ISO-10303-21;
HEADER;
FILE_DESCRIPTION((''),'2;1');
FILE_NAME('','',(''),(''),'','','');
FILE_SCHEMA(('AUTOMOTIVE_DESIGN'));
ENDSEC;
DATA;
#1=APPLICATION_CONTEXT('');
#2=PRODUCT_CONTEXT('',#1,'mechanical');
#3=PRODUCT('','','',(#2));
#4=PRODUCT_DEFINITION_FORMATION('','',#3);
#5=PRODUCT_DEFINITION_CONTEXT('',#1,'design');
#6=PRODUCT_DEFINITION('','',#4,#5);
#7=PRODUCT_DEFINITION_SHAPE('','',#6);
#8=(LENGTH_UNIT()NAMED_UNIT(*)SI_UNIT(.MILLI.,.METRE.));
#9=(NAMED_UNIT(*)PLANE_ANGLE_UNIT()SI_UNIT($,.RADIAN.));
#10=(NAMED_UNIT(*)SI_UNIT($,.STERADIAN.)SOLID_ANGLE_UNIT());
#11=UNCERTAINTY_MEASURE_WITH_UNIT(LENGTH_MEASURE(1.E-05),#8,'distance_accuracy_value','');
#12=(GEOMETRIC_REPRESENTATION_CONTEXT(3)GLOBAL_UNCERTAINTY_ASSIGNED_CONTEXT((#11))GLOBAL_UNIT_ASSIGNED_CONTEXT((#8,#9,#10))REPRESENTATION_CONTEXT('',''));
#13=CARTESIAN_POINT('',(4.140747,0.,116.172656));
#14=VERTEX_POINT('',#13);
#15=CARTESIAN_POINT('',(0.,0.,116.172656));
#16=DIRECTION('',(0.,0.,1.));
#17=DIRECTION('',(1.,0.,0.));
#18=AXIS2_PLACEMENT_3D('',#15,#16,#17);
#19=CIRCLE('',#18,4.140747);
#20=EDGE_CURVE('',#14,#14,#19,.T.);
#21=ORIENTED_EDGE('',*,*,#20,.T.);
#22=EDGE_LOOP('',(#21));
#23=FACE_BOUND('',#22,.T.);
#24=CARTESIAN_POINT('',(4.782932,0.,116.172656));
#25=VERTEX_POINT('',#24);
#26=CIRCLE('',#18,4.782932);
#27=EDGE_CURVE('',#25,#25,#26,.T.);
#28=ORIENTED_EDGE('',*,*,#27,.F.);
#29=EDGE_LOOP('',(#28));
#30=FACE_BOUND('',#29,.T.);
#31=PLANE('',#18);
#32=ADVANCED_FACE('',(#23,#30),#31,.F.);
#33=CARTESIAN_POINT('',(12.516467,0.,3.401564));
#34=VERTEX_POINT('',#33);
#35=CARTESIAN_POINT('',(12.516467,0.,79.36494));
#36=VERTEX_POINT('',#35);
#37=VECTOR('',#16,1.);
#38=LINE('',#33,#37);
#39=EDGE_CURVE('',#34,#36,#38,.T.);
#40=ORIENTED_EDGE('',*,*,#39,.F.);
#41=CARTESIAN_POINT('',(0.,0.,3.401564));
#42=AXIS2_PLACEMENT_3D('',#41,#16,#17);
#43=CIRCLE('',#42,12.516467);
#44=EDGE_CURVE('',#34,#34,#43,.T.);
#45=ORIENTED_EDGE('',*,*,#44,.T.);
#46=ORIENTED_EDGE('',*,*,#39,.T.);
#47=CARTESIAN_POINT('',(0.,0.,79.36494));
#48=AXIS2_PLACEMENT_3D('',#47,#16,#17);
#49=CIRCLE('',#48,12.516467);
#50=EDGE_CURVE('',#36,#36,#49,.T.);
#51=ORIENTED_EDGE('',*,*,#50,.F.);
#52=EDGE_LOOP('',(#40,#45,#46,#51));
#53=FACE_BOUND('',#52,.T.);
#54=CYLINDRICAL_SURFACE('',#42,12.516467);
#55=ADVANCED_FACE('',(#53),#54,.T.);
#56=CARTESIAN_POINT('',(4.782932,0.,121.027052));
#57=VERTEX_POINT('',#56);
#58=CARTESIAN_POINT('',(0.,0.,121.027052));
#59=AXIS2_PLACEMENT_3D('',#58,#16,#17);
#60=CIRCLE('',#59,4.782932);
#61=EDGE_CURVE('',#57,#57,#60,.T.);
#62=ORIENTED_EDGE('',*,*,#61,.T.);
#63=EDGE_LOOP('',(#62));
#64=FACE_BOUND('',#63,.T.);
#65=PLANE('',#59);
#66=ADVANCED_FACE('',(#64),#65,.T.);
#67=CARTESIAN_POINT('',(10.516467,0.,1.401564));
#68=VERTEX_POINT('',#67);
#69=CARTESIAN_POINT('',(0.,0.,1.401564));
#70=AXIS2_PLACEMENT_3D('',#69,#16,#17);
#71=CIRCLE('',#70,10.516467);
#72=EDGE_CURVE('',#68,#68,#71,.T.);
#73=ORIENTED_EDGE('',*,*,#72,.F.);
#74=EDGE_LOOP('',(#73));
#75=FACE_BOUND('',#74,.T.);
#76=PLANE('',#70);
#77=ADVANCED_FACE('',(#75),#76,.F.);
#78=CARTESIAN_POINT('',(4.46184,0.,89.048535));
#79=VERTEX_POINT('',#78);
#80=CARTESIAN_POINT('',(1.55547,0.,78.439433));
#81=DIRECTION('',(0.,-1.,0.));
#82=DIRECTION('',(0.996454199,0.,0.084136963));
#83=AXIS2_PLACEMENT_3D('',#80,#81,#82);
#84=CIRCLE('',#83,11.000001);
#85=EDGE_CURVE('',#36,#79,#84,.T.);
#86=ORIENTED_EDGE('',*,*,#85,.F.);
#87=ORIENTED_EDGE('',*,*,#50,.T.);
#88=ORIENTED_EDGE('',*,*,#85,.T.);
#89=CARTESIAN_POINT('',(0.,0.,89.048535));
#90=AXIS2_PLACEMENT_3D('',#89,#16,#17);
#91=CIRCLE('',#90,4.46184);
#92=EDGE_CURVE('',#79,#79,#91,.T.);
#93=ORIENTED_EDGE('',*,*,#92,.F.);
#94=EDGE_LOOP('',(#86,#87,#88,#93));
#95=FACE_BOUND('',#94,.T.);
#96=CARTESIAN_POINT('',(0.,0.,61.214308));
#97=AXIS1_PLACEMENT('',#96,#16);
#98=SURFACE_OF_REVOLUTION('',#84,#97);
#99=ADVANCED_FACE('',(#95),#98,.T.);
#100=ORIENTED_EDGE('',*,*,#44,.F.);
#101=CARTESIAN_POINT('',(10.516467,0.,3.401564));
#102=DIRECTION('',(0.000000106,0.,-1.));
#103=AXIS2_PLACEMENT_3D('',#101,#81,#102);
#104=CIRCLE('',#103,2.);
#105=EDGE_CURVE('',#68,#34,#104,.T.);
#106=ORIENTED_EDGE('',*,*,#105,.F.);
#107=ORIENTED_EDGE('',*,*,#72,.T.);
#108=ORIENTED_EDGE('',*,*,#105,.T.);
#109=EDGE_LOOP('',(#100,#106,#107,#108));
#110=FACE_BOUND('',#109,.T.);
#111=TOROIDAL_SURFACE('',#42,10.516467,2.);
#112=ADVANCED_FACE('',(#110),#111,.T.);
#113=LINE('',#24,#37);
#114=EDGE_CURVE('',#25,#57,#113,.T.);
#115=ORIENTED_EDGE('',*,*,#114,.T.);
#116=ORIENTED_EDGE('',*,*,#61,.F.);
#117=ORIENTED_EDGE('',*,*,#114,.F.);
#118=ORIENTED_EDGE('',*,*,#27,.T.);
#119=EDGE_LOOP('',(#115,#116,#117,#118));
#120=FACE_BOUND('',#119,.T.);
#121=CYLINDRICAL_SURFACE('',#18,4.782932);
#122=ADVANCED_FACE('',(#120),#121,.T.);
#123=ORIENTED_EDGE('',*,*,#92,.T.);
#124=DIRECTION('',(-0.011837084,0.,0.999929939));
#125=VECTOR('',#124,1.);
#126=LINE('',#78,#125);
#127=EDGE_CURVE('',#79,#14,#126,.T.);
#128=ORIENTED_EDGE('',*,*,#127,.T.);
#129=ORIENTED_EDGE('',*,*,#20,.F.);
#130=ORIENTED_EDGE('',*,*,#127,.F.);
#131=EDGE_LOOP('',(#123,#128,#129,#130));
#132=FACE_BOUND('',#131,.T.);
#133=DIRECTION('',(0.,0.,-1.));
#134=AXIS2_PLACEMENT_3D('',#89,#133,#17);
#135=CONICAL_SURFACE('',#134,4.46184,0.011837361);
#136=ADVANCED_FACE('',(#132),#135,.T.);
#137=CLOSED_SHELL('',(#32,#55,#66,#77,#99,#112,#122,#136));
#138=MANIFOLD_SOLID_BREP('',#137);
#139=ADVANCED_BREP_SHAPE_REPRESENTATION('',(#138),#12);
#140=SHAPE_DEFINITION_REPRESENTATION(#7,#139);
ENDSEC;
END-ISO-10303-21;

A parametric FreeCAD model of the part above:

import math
import FreeCAD as App
import Part
import Sketcher

doc = App.newDocument("Part")
params = doc.addObject("Spreadsheet::Sheet", "Params")
for row, (alias, value) in enumerate([
    ("sketch1_radius", "11.000001 mm"),
    ("sketch1_radius2", "2 mm"),
    ("revolution_angle", "360 deg"),
], start=1):
    params.set(f"A{row}", alias)
    params.set(f"B{row}", "=" + value)
    params.setAlias(f"B{row}", alias)

body = doc.addObject("PartDesign::Body", "Body")

# Sketch on XZ plane
sketch1 = body.newObject("Sketcher::SketchObject", "Sketch")
sketch1.AttachmentSupport = (doc.getObject("XZ_Plane"), [""])
sketch1.MapMode = "FlatFace"
sketch1.addGeometry([
    Part.ArcOfCircle(Part.Circle(App.Vector(1.6, 78.4, 0), App.Vector(0, 0, 1), 11), math.radians(5), math.radians(75)),  # 0
    Part.LineSegment(App.Vector(4.5, 89, 0), App.Vector(4.1, 116.2, 0)),  # 1
    Part.LineSegment(App.Vector(4.1, 116.2, 0), App.Vector(4.8, 116.2, 0)),  # 2
    Part.LineSegment(App.Vector(4.8, 116.2, 0), App.Vector(4.8, 121, 0)),  # 3
    Part.LineSegment(App.Vector(4.8, 121, 0), App.Vector(0, 121, 0)),  # 4
    Part.LineSegment(App.Vector(0, 121, 0), App.Vector(0, 1.4, 0)),  # 5
    Part.LineSegment(App.Vector(0, 1.4, 0), App.Vector(10.5, 1.4, 0)),  # 6
    Part.ArcOfCircle(Part.Circle(App.Vector(10.5, 3.4, 0), App.Vector(0, 0, 1), 2), math.radians(-90), math.radians(0)),  # 7
    Part.LineSegment(App.Vector(12.5, 3.4, 0), App.Vector(12.5, 79.4, 0)),  # 8
], False)
sketch1.addConstraint([
    Sketcher.Constraint("Coincident", 0, 2, 1, 1),
    Sketcher.Constraint("Coincident", 1, 2, 2, 1),
    Sketcher.Constraint("Coincident", 2, 2, 3, 1),
    Sketcher.Constraint("Coincident", 3, 2, 4, 1),
    Sketcher.Constraint("Coincident", 4, 2, 5, 1),
    Sketcher.Constraint("Coincident", 5, 2, 6, 1),
    Sketcher.Constraint("Tangent", 6, 2, 7, 1),
    Sketcher.Constraint("Tangent", 7, 2, 8, 1),
    Sketcher.Constraint("Coincident", 8, 2, 0, 1),
    Sketcher.Constraint("Horizontal", 2),
    Sketcher.Constraint("Vertical", 3),
    Sketcher.Constraint("Horizontal", 4),
    Sketcher.Constraint("Vertical", 5),
    Sketcher.Constraint("Horizontal", 6),
    Sketcher.Constraint("Vertical", 8),
    Sketcher.Constraint("PointOnObject", 4, 2, -2),
    Sketcher.Constraint("Radius", 0, 11.000001),
    Sketcher.Constraint("Radius", 7, 2.0),
    Sketcher.Constraint("DistanceX", 4, 2, 4, 1, 4.782932),
    Sketcher.Constraint("DistanceY", 5, 2, 5, 1, 119.625488),
    Sketcher.Constraint("DistanceY", 0, 3, 0, 2, 10.609102),
    Sketcher.Constraint("Distance", 1, 27.126021),
    Sketcher.Constraint("DistanceX", 2, 1, 2, 2, 0.642185),
    Sketcher.Constraint("DistanceX", 6, 1, 6, 2, 10.516467),
    Sketcher.Constraint("DistanceY", 3, 1, 3, 2, 4.854396),
    Sketcher.Constraint("DistanceY", 8, 1, 8, 2, 75.963376),
    Sketcher.Constraint("DistanceY", -1, 1, 3, 2, 121.027052),
])
sketch1.setExpression("Constraints[16]", "Params.sketch1_radius")
sketch1.setExpression("Constraints[17]", "Params.sketch1_radius2")
revolution = body.newObject("PartDesign::Revolution", "Revolution")
revolution.Profile = sketch1
revolution.ReferenceAxis = (sketch1, ["V_Axis"])
revolution.setExpression("Angle", "Params.revolution_angle")

doc.recompute()
